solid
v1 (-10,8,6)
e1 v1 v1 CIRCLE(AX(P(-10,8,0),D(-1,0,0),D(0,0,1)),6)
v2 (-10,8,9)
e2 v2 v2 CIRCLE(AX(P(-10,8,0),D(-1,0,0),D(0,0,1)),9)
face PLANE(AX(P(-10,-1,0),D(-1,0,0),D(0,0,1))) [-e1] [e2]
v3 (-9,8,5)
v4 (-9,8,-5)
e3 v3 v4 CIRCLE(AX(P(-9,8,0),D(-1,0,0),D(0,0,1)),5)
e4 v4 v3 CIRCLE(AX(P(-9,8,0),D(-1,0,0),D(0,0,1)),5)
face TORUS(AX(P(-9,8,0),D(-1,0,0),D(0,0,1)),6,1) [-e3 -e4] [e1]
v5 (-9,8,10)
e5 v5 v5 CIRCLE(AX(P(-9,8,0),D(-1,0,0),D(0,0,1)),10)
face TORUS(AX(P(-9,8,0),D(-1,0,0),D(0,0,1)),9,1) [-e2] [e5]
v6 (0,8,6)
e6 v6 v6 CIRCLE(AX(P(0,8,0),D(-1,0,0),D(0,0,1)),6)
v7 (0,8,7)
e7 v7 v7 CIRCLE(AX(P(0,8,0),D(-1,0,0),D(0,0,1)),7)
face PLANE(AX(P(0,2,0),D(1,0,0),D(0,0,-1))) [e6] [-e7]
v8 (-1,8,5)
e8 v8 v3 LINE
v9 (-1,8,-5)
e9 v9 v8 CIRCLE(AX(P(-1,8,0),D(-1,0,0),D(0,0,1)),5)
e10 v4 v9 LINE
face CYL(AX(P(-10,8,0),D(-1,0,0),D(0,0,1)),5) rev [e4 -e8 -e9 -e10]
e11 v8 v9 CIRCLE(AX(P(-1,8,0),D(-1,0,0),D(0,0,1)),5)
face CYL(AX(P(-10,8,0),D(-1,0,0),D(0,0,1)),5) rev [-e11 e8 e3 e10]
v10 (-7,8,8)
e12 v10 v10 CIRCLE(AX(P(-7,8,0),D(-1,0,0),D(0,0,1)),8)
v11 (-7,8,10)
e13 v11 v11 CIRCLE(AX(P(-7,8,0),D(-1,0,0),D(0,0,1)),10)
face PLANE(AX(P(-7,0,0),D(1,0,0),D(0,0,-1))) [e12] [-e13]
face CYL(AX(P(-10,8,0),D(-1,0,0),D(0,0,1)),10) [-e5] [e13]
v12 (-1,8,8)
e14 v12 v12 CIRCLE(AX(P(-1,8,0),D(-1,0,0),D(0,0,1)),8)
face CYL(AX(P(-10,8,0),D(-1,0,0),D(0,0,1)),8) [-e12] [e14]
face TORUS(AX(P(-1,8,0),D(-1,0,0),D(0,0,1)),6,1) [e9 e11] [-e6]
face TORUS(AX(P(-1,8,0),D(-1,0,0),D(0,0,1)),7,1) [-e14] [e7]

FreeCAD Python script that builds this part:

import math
import FreeCAD as App
import Part
import Sketcher
from FreeCAD import Vector
Q = App.Units.Quantity

doc = App.newDocument("Part")
body = doc.addObject("PartDesign::Body", "Body")

# Sketch on XY plane
sketch1 = body.newObject("Sketcher::SketchObject", "Sketch")
sketch1.AttachmentSupport = (doc.getObject("XY_Plane"), [""])
sketch1.MapMode = "FlatFace"
sketch1.addGeometry(Part.LineSegment(Vector(-7, 0, 0), Vector(-1, 0, 0)), False)
sketch1.addGeometry(Part.ArcOfCircle(Part.Circle(Vector(-1, 1, 0), Vector(0, 0, 1), 1), math.radians(-90), math.radians(0)), False)
sketch1.addGeometry(Part.LineSegment(Vector(0, 1, 0), Vector(0, 2, 0)), False)
sketch1.addGeometry(Part.ArcOfCircle(Part.Circle(Vector(-1, 2, 0), Vector(0, 0, 1), 1), math.radians(0), math.radians(90)), False)
sketch1.addGeometry(Part.LineSegment(Vector(-1, 3, 0), Vector(-9, 3, 0)), False)
sketch1.addGeometry(Part.ArcOfCircle(Part.Circle(Vector(-9, 2, 0), Vector(0, 0, 1), 1), math.radians(90), math.radians(180)), False)
sketch1.addGeometry(Part.LineSegment(Vector(-10, 2, 0), Vector(-10, -1, 0)), False)
sketch1.addGeometry(Part.ArcOfCircle(Part.Circle(Vector(-9, -1, 0), Vector(0, 0, 1), 1), math.radians(-180), math.radians(-90)), False)
sketch1.addGeometry(Part.LineSegment(Vector(-9, -2, 0), Vector(-7, -2, 0)), False)
sketch1.addGeometry(Part.LineSegment(Vector(-7, -2, 0), Vector(-7, 0, 0)), False)
sketch1.addGeometry(Part.LineSegment(Vector(-10, 8, 0), Vector(0, 8, 0)), True)  # axis
sketch1.addConstraint(Sketcher.Constraint("Tangent", 0, 2, 1, 1))
sketch1.addConstraint(Sketcher.Constraint("Tangent", 1, 2, 2, 1))
sketch1.addConstraint(Sketcher.Constraint("Tangent", 2, 2, 3, 1))
sketch1.addConstraint(Sketcher.Constraint("Tangent", 3, 2, 4, 1))
sketch1.addConstraint(Sketcher.Constraint("Tangent", 4, 2, 5, 1))
sketch1.addConstraint(Sketcher.Constraint("Tangent", 5, 2, 6, 1))
sketch1.addConstraint(Sketcher.Constraint("Tangent", 6, 2, 7, 1))
sketch1.addConstraint(Sketcher.Constraint("Tangent", 7, 2, 8, 1))
sketch1.addConstraint(Sketcher.Constraint("Coincident", 8, 2, 9, 1))
sketch1.addConstraint(Sketcher.Constraint("Coincident", 9, 2, 0, 1))
sketch1.addConstraint(Sketcher.Constraint("Horizontal", 0))
sketch1.addConstraint(Sketcher.Constraint("Vertical", 2))
sketch1.addConstraint(Sketcher.Constraint("Horizontal", 4))
sketch1.addConstraint(Sketcher.Constraint("Vertical", 6))
sketch1.addConstraint(Sketcher.Constraint("Horizontal", 8))
sketch1.addConstraint(Sketcher.Constraint("Vertical", 9))
sketch1.addConstraint(Sketcher.Constraint("Horizontal", 10))
sketch1.addConstraint(Sketcher.Constraint("Equal", 1, 3))
sketch1.addConstraint(Sketcher.Constraint("Equal", 3, 5))
sketch1.addConstraint(Sketcher.Constraint("Equal", 5, 7))
sketch1.addConstraint(Sketcher.Constraint("PointOnObject", 0, 2, -1))
sketch1.addConstraint(Sketcher.Constraint("PointOnObject", 1, 2, -2))
sketch1.addConstraint(Sketcher.Constraint("PointOnObject", 10, 2, -2))
sketch1.addConstraint(Sketcher.Constraint("Vertical", 6, 2, 10, 1))
sketch1.addConstraint(Sketcher.Constraint("Equal", 8, 9))
sketch1.addConstraint(Sketcher.Constraint("Radius", 1, Q("1 mm")))
sketch1.addConstraint(Sketcher.Constraint("DistanceX", 0, 1, 0, 2, Q("6 mm")))
sketch1.addConstraint(Sketcher.Constraint("DistanceX", 4, 2, 4, 1, Q("8 mm")))
sketch1.addConstraint(Sketcher.Constraint("DistanceY", 2, 1, 2, 2, Q("1 mm")))
sketch1.addConstraint(Sketcher.Constraint("DistanceY", -1, 1, 10, 1, Q("8 mm")))
revolution = body.newObject("PartDesign::Revolution", "Revolution")
revolution.Profile = sketch1
revolution.ReferenceAxis = (sketch1, ["Axis0"])
revolution.Angle = 360

doc.recompute()
